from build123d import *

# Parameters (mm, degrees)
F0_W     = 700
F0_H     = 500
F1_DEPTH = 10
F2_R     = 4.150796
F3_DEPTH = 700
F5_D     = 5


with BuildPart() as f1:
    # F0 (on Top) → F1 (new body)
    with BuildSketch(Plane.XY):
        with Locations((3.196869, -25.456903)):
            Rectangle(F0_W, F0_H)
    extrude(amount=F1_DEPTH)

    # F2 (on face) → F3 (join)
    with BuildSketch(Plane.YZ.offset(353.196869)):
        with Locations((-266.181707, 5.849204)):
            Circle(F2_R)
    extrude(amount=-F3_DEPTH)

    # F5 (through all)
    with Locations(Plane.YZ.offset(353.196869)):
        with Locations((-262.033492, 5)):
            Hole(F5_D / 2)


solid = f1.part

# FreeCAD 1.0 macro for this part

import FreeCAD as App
import Part
import Sketcher

V = App.Vector

doc = App.newDocument("Part")
body = doc.addObject("PartDesign::Body", "Body")

# Sketch on XY plane
sketch1 = body.newObject("Sketcher::SketchObject", "Sketch")
sketch1.AttachmentSupport = (doc.getObject("XY_Plane"), [""])
sketch1.MapMode = "FlatFace"
sketch1.addGeometry([
    Part.LineSegment(V(-347, 225, 0), V(-347, -275, 0)),
    Part.LineSegment(V(-347, -275, 0), V(353, -275, 0)),
    Part.LineSegment(V(353, -275, 0), V(353, 225, 0)),
    Part.LineSegment(V(353, 225, 0), V(-347, 225, 0)),
], False)
sketch1.addConstraint([
    Sketcher.Constraint("Coincident", 0, 2, 1, 1),
    Sketcher.Constraint("Coincident", 1, 2, 2, 1),
    Sketcher.Constraint("Coincident", 2, 2, 3, 1),
    Sketcher.Constraint("Coincident", 3, 2, 0, 1),
    Sketcher.Constraint("Vertical", 0),
    Sketcher.Constraint("Horizontal", 1),
    Sketcher.Constraint("Vertical", 2),
    Sketcher.Constraint("Horizontal", 3),
    Sketcher.Constraint("DistanceX", 1, 1, 1, 2, 700.0),
    Sketcher.Constraint("DistanceY", 0, 2, 0, 1, 500.0),
    Sketcher.Constraint("DistanceX", 0, 2, -1, 1, 346.803131),
    Sketcher.Constraint("DistanceY", 0, 2, -1, 1, 275.456903),
])
pad1 = body.newObject("PartDesign::Pad", "Pad")
pad1.Profile = sketch1
pad1.Length = 10

# Sketch on YZ plane
sketch2 = body.newObject("Sketcher::SketchObject", "Sketch001")
sketch2.AttachmentSupport = (doc.getObject("YZ_Plane"), [""])
sketch2.MapMode = "FlatFace"
sketch2.AttachmentOffset = App.Placement(V(0, 0, 353.196869), App.Rotation())
sketch2.addGeometry(Part.Circle(V(-266.2, 5.8, 0), V(0, 0, 1), 4.2), False)
sketch2.addConstraint([
    Sketcher.Constraint("Diameter", 0, 8.301592),
    Sketcher.Constraint("DistanceX", 0, 3, -1, 1, 266.181707),
    Sketcher.Constraint("DistanceY", -1, 1, 0, 3, 5.849204),
])
pad2 = body.newObject("PartDesign::Pad", "Pad001")
pad2.Profile = sketch2
pad2.Length = 700
pad2.Reversed = True

# Sketch on YZ plane
sketch3 = body.newObject("Sketcher::SketchObject", "Sketch002")
sketch3.AttachmentSupport = (doc.getObject("YZ_Plane"), [""])
sketch3.MapMode = "FlatFace"
sketch3.AttachmentOffset = App.Placement(V(0, 0, 353.196869), App.Rotation())
sketch3.addGeometry(Part.Circle(V(-262, 5, 0), V(0, 0, 1), 2.5), False)
sketch3.addConstraint([
    Sketcher.Constraint("Diameter", 0, 5.0),
    Sketcher.Constraint("DistanceY", -1, 1, 0, 3, 5.0),
    Sketcher.Constraint("DistanceX", 0, 3, -1, 1, 262.033492),
])
doc.recompute()
hole = body.newObject("PartDesign::Hole", "Hole")
hole.Profile = sketch3
hole.ThreadType = "None"
hole.Diameter = 5
hole.DepthType = "ThroughAll"

doc.recompute()
